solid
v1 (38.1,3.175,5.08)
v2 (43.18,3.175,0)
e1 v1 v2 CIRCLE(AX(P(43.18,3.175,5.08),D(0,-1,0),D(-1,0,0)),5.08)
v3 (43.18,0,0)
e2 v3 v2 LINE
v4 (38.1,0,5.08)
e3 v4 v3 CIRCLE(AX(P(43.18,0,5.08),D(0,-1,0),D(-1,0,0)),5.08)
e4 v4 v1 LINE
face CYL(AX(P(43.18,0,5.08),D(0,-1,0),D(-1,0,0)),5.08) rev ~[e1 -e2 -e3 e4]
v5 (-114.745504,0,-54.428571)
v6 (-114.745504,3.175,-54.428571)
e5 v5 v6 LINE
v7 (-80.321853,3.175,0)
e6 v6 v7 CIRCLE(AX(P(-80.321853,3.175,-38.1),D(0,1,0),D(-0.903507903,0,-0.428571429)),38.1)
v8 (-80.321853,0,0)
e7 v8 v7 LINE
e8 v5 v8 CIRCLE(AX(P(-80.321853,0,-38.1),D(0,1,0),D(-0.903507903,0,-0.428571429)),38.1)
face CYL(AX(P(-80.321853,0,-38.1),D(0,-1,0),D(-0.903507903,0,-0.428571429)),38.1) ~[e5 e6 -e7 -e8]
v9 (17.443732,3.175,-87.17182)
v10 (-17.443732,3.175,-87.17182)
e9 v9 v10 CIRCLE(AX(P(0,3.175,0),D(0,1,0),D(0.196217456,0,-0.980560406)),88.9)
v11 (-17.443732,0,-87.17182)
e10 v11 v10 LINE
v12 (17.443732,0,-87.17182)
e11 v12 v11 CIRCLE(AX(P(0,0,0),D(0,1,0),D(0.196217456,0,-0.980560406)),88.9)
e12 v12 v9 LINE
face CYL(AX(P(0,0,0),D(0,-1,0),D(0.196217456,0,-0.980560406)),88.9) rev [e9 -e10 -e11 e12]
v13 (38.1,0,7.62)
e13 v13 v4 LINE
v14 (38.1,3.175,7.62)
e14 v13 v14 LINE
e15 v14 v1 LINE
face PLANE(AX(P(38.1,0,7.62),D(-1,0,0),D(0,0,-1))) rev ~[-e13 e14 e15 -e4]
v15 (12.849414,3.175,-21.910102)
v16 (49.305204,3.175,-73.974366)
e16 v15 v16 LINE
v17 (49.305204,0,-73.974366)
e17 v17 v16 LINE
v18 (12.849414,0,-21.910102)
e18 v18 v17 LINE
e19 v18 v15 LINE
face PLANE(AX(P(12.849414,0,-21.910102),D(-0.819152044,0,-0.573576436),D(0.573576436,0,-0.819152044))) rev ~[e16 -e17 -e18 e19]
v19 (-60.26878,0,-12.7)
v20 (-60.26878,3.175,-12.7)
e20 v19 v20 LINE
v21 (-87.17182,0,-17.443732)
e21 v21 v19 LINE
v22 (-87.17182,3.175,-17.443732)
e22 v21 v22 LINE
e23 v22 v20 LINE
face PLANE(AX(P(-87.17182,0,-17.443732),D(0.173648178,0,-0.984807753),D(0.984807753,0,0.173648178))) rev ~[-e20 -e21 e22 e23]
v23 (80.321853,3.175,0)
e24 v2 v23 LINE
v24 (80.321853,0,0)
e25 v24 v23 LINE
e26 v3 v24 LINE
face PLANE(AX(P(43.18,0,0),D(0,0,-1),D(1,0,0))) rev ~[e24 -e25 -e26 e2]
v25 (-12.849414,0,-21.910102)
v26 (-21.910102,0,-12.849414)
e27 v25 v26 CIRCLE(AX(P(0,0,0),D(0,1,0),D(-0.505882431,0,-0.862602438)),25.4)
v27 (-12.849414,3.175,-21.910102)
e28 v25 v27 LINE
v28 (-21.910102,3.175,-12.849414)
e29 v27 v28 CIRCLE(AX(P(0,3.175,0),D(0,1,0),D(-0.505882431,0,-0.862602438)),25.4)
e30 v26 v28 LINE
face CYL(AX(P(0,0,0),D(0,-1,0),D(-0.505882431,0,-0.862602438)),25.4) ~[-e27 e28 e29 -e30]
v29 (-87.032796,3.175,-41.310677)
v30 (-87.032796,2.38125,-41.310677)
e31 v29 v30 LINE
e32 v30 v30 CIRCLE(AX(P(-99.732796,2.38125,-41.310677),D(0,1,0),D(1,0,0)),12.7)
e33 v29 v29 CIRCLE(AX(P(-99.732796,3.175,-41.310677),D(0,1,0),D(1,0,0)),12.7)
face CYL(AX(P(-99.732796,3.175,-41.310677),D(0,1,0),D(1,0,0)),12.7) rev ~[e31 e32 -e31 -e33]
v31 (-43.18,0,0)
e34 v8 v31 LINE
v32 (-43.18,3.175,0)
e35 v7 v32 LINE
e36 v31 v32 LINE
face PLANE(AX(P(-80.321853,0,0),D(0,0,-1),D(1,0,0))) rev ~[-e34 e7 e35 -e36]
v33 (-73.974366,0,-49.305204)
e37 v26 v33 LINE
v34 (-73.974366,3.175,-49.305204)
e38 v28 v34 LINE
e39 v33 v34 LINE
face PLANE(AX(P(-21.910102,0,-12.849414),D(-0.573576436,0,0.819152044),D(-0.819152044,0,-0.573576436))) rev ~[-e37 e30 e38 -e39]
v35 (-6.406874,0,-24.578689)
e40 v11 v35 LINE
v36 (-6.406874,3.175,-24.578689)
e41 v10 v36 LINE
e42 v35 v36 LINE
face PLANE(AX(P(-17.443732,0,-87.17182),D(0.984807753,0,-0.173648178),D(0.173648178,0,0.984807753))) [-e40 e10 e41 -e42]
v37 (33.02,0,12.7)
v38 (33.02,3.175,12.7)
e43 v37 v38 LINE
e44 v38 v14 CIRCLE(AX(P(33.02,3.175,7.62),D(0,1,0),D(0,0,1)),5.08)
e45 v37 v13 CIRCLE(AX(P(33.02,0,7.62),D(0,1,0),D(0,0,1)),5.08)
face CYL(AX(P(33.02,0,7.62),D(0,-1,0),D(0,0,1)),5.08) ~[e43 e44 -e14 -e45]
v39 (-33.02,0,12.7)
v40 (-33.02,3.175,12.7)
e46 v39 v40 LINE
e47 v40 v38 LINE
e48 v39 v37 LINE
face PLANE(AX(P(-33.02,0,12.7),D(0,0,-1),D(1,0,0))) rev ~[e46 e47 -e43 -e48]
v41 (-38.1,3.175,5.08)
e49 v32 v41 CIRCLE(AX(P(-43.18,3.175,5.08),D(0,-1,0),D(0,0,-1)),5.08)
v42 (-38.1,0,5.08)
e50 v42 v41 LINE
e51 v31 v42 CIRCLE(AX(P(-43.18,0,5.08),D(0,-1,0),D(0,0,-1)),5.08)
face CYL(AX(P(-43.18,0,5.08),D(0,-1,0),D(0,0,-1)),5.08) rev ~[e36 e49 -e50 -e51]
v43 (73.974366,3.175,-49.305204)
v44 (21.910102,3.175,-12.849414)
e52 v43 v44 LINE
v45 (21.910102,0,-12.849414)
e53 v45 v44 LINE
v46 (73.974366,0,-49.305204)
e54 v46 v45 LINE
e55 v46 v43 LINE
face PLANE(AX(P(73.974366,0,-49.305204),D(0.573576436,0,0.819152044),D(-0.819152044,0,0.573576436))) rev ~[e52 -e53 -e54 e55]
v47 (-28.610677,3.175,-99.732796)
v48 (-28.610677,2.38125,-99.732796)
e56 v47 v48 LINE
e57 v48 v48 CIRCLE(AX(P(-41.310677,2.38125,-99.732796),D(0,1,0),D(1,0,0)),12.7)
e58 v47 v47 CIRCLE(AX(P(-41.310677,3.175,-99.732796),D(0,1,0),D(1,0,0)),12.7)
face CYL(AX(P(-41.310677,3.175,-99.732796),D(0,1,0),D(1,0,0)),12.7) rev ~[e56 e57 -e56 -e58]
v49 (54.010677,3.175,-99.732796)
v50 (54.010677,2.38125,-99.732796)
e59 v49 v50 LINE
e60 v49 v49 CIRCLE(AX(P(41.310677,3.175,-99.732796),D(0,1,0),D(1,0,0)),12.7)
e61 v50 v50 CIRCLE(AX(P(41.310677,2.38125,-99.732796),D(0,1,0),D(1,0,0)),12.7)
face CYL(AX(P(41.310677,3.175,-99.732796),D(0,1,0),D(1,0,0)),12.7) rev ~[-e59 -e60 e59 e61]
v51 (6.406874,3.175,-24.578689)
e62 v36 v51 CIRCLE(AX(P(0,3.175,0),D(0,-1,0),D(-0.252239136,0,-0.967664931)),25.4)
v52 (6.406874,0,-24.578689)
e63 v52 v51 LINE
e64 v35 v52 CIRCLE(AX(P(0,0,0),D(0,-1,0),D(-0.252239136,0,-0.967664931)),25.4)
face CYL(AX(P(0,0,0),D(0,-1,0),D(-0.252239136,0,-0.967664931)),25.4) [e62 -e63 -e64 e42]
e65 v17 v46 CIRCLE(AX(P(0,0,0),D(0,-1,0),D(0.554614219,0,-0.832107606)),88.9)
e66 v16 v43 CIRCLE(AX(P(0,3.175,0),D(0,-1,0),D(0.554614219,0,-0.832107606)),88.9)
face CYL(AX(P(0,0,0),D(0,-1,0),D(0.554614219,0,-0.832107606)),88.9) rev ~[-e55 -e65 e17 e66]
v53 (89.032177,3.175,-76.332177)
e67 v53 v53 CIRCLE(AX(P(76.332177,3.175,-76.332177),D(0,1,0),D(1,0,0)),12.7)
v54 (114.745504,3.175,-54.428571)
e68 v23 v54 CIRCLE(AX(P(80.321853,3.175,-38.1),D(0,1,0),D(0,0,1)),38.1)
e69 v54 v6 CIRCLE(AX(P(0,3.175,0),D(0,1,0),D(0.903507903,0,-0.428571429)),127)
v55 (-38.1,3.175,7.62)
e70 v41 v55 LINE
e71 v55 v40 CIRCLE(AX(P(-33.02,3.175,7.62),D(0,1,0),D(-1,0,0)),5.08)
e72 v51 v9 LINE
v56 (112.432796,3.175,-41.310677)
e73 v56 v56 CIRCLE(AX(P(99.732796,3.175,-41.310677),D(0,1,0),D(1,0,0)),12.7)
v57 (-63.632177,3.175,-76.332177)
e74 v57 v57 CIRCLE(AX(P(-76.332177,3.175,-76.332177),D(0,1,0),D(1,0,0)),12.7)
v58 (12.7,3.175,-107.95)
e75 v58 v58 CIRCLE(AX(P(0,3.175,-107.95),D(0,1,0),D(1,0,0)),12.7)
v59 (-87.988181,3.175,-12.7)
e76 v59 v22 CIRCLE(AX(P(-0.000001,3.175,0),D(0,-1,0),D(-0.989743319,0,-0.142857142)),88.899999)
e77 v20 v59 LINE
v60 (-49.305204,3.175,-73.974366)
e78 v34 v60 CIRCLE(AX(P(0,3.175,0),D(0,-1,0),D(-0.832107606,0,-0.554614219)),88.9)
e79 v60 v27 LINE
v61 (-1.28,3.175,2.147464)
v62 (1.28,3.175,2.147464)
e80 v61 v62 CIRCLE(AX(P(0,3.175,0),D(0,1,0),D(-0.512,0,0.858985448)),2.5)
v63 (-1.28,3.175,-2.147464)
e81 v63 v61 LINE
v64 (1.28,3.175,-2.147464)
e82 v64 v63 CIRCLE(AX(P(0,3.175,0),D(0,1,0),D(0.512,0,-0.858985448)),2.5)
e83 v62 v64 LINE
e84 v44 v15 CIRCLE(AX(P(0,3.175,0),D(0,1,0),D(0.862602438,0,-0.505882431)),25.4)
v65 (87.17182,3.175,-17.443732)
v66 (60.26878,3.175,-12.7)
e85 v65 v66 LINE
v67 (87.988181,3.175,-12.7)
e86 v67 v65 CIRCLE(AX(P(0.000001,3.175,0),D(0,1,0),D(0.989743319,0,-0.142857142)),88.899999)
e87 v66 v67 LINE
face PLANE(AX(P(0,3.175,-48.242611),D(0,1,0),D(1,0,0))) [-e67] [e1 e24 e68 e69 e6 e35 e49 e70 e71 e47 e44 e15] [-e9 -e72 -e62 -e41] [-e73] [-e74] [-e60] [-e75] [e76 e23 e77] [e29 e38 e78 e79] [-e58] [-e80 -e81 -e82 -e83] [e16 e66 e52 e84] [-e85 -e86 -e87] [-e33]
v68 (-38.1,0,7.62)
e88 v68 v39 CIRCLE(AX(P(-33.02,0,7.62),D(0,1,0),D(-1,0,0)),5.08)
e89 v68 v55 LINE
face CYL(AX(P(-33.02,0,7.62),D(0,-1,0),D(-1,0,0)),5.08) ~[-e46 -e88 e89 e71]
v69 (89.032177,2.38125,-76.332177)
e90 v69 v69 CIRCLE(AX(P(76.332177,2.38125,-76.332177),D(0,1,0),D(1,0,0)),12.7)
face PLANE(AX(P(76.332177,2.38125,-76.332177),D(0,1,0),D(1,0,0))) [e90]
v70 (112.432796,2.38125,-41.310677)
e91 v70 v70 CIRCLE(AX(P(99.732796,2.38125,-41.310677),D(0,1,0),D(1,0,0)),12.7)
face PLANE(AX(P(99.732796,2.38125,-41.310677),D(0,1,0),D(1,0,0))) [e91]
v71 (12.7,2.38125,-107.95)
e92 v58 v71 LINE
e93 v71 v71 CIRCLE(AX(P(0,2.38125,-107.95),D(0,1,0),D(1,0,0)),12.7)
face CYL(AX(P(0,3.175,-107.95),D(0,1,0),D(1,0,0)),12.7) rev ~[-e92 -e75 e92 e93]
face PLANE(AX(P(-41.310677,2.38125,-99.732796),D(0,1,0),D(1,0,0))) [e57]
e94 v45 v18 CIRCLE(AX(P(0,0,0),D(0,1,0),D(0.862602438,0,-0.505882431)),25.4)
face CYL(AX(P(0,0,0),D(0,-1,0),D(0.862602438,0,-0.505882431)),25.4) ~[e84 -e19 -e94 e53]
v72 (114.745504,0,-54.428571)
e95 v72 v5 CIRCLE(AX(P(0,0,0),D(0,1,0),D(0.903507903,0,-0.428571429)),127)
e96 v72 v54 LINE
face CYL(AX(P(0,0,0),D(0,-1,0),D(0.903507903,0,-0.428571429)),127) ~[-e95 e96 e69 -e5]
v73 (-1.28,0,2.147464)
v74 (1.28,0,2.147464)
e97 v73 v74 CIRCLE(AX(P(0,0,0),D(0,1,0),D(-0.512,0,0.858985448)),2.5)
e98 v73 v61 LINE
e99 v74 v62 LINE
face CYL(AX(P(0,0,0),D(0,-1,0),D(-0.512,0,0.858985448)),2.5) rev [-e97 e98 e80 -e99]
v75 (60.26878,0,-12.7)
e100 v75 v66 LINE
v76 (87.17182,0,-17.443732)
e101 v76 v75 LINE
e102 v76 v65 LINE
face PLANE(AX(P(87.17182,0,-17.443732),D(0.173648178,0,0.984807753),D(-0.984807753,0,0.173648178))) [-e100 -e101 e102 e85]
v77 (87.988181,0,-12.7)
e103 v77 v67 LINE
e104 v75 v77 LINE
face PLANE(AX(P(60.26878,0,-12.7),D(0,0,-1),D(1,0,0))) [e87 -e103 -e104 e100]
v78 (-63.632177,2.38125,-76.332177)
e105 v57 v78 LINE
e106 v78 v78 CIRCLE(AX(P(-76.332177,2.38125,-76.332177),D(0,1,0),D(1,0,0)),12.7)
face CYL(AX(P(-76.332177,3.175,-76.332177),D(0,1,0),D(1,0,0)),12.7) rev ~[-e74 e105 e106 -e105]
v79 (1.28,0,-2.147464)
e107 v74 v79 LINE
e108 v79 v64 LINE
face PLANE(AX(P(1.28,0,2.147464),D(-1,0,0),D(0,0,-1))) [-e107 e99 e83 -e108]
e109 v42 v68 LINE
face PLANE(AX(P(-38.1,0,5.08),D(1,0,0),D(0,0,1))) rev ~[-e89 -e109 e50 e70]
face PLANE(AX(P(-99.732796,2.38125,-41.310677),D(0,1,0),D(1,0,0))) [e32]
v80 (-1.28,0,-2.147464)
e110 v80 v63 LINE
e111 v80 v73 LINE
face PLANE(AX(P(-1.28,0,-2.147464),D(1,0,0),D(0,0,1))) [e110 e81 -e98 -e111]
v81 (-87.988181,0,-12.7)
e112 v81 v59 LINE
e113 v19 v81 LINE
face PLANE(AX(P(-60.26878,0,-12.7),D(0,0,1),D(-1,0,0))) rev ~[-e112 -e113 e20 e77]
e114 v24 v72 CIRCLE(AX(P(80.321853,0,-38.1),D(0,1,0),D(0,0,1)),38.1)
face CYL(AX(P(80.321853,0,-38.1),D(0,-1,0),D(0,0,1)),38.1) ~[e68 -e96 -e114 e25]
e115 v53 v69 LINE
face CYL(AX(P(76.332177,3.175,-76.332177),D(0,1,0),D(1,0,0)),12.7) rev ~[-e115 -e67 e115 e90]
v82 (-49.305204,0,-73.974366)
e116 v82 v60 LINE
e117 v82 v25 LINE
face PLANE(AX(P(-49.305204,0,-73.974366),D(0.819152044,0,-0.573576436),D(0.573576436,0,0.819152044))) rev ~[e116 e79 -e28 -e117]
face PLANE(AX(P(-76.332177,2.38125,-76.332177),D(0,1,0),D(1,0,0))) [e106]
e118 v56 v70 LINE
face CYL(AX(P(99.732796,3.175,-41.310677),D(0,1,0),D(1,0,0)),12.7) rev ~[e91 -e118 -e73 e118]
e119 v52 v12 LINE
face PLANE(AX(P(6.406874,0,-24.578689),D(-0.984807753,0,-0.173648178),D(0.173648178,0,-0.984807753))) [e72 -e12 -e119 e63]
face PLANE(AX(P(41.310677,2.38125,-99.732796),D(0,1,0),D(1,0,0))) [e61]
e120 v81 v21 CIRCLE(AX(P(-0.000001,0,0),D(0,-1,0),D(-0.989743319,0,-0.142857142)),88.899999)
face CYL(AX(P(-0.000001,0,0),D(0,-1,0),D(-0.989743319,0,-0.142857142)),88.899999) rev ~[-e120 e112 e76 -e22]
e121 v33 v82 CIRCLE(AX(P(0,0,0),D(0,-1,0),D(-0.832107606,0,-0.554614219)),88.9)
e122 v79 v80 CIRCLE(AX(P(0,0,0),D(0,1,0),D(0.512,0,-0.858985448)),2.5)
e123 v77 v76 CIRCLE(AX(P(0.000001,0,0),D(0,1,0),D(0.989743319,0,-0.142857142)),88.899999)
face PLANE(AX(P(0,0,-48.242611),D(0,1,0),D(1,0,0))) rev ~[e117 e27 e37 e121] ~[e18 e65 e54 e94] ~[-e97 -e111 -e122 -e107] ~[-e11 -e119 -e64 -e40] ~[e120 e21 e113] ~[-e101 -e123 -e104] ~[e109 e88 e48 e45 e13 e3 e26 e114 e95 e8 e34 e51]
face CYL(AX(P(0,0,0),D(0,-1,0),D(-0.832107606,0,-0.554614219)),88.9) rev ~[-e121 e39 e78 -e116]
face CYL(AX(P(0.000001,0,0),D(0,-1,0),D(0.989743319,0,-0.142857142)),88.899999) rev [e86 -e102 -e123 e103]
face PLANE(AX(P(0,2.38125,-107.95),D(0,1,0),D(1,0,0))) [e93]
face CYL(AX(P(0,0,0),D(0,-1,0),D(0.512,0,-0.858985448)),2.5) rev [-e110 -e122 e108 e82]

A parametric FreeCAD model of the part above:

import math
import FreeCAD as App
import Part
import Sketcher
from FreeCAD import Vector
Q = App.Units.Quantity

doc = App.newDocument("Part")
body = doc.addObject("PartDesign::Body", "Body")

# Sketch on XZ plane
sketch1 = body.newObject("Sketcher::SketchObject", "Sketch")
sketch1.AttachmentSupport = (doc.getObject("XZ_Plane"), [""])
sketch1.MapMode = "FlatFace"
sketch1.addGeometry([
    Part.LineSegment(Vector(-80.321853, 0, 0), Vector(-43.18, 0, 0)),  # 0
    Part.ArcOfCircle(Part.Circle(Vector(-43.18, 5.08, 0), Vector(0, 0, 1), 5.08), math.radians(-90), math.radians(0)),  # 1
    Part.LineSegment(Vector(-38.1, 5.08, 0), Vector(-38.1, 7.62, 0)),  # 2
    Part.ArcOfCircle(Part.Circle(Vector(-33.02, 7.62, 0), Vector(0, 0, 1), 5.08), math.radians(90), math.radians(180)),  # 3
    Part.LineSegment(Vector(-33.02, 12.7, 0), Vector(33.02, 12.7, 0)),  # 4
    Part.ArcOfCircle(Part.Circle(Vector(33.02, 7.62, 0), Vector(0, 0, 1), 5.08), math.radians(0), math.radians(90)),  # 5
    Part.LineSegment(Vector(38.1, 7.62, 0), Vector(38.1, 5.08, 0)),  # 6
    Part.ArcOfCircle(Part.Circle(Vector(43.18, 5.08, 0), Vector(0, 0, 1), 5.08), math.radians(-180), math.radians(-90)),  # 7
    Part.LineSegment(Vector(43.18, 0, 0), Vector(80.321853, 0, 0)),  # 8
    Part.ArcOfCircle(Part.Circle(Vector(80.321853, -38.1, 0), Vector(0, 0, 1), 38.1), math.radians(-25.376934), math.radians(90)),  # 9
    Part.ArcOfCircle(Part.Circle(Vector(0, 0, 0), Vector(0, 0, 1), 127), math.radians(-154.623066), math.radians(-25.376934)),  # 10
    Part.ArcOfCircle(Part.Circle(Vector(-80.321853, -38.1, 0), Vector(0, 0, 1), 38.1), math.radians(90), math.radians(205.376934)),  # 11
    Part.ArcOfCircle(Part.Circle(Vector(-0.000001, 0, 0), Vector(0, 0, 1), 88.899999), math.radians(-171.786789), math.radians(-168.684147)),  # 12
    Part.LineSegment(Vector(-87.17182, -17.443732, 0), Vector(-60.26878, -12.7, 0)),  # 13
    Part.LineSegment(Vector(-60.26878, -12.7, 0), Vector(-87.988181, -12.7, 0)),  # 14
    Part.LineSegment(Vector(-1.28, 2.147464, 0), Vector(-1.28, -2.147464, 0)),  # 15
    Part.ArcOfCircle(Part.Circle(Vector(0, 0, 0), Vector(0, 0, 1), 2.5), math.radians(-120.797141), math.radians(-59.202859)),  # 16
    Part.LineSegment(Vector(1.28, -2.147464, 0), Vector(1.28, 2.147464, 0)),  # 17
    Part.ArcOfCircle(Part.Circle(Vector(0, 0, 0), Vector(0, 0, 1), 2.5), math.radians(59.202859), math.radians(120.797141)),  # 18
    Part.LineSegment(Vector(60.26878, -12.7, 0), Vector(87.17182, -17.443732, 0)),  # 19
    Part.ArcOfCircle(Part.Circle(Vector(0.000001, 0, 0), Vector(0, 0, 1), 88.899999), math.radians(-11.315853), math.radians(-8.213211)),  # 20
    Part.LineSegment(Vector(87.988181, -12.7, 0), Vector(60.26878, -12.7, 0)),  # 21
    Part.ArcOfCircle(Part.Circle(Vector(0, 0, 0), Vector(0, 0, 1), 88.9), math.radians(-146.315853), math.radians(-123.684147)),  # 22
    Part.LineSegment(Vector(-49.305204, -73.974366, 0), Vector(-12.849414, -21.910102, 0)),  # 23
    Part.ArcOfCircle(Part.Circle(Vector(0, 0, 0), Vector(0, 0, 1), 25.4), math.radians(-149.610052), math.radians(-120.389948)),  # 24
    Part.LineSegment(Vector(-21.910102, -12.849414, 0), Vector(-73.974366, -49.305204, 0)),  # 25
    Part.ArcOfCircle(Part.Circle(Vector(0, 0, 0), Vector(0, 0, 1), 88.9), math.radians(-56.315853), math.radians(-33.684147)),  # 26
    Part.LineSegment(Vector(73.974366, -49.305204, 0), Vector(21.910102, -12.849414, 0)),  # 27
    Part.ArcOfCircle(Part.Circle(Vector(0, 0, 0), Vector(0, 0, 1), 25.4), math.radians(-59.610052), math.radians(-30.389948)),  # 28
    Part.LineSegment(Vector(12.849414, -21.910102, 0), Vector(49.305204, -73.974366, 0)),  # 29
    Part.LineSegment(Vector(-6.406874, -24.578689, 0), Vector(-17.443732, -87.17182, 0)),  # 30
    Part.ArcOfCircle(Part.Circle(Vector(0, 0, 0), Vector(0, 0, 1), 88.9), math.radians(-101.315853), math.radians(-78.684147)),  # 31
    Part.LineSegment(Vector(17.443732, -87.17182, 0), Vector(6.406874, -24.578689, 0)),  # 32
    Part.ArcOfCircle(Part.Circle(Vector(0, 0, 0), Vector(0, 0, 1), 25.4), math.radians(-104.610052), math.radians(-75.389948)),  # 33
], False)
sketch1.addConstraint([
    Sketcher.Constraint("Tangent", 0, 2, 1, 1),
    Sketcher.Constraint("Tangent", 1, 2, 2, 1),
    Sketcher.Constraint("Tangent", 2, 2, 3, 2),
    Sketcher.Constraint("Tangent", 3, 1, 4, 1),
    Sketcher.Constraint("Tangent", 4, 2, 5, 2),
    Sketcher.Constraint("Tangent", 5, 1, 6, 1),
    Sketcher.Constraint("Tangent", 6, 2, 7, 1),
    Sketcher.Constraint("Tangent", 7, 2, 8, 1),
    Sketcher.Constraint("Tangent", 8, 2, 9, 2),
    Sketcher.Constraint("Tangent", 9, 1, 10, 2),
    Sketcher.Constraint("Tangent", 10, 1, 11, 2),
    Sketcher.Constraint("Tangent", 11, 1, 0, 1),
    Sketcher.Constraint("Coincident", 12, 2, 13, 1),
    Sketcher.Constraint("Coincident", 13, 2, 14, 1),
    Sketcher.Constraint("Coincident", 14, 2, 12, 1),
    Sketcher.Constraint("Coincident", 15, 2, 16, 1),
    Sketcher.Constraint("Coincident", 16, 2, 17, 1),
    Sketcher.Constraint("Coincident", 17, 2, 18, 1),
    Sketcher.Constraint("Coincident", 18, 2, 15, 1),
    Sketcher.Constraint("Coincident", 19, 2, 20, 1),
    Sketcher.Constraint("Coincident", 20, 2, 21, 1),
    Sketcher.Constraint("Coincident", 21, 2, 19, 1),
    Sketcher.Constraint("Coincident", 22, 2, 23, 1),
    Sketcher.Constraint("Coincident", 23, 2, 24, 2),
    Sketcher.Constraint("Coincident", 24, 1, 25, 1),
    Sketcher.Constraint("Coincident", 25, 2, 22, 1),
    Sketcher.Constraint("Coincident", 26, 2, 27, 1),
    Sketcher.Constraint("Coincident", 27, 2, 28, 2),
    Sketcher.Constraint("Coincident", 28, 1, 29, 1),
    Sketcher.Constraint("Coincident", 29, 2, 26, 1),
    Sketcher.Constraint("Coincident", 30, 2, 31, 1),
    Sketcher.Constraint("Coincident", 31, 2, 32, 1),
    Sketcher.Constraint("Coincident", 32, 2, 33, 2),
    Sketcher.Constraint("Coincident", 33, 1, 30, 1),
    Sketcher.Constraint("Horizontal", 0),
    Sketcher.Constraint("Vertical", 2),
    Sketcher.Constraint("Horizontal", 4),
    Sketcher.Constraint("Vertical", 6),
    Sketcher.Constraint("Horizontal", 8),
    Sketcher.Constraint("Horizontal", 14),
    Sketcher.Constraint("Vertical", 15),
    Sketcher.Constraint("Vertical", 17),
    Sketcher.Constraint("Horizontal", 21),
    Sketcher.Constraint("Coincident", 10, 3, -1, 1),
    Sketcher.Constraint("Coincident", 12, 3, -1, 1),
    Sketcher.Constraint("Coincident", 16, 3, -1, 1),
    Sketcher.Constraint("Coincident", 18, 3, -1, 1),
    Sketcher.Constraint("Coincident", 20, 3, -1, 1),
    Sketcher.Constraint("Coincident", 22, 3, -1, 1),
    Sketcher.Constraint("Coincident", 24, 3, -1, 1),
    Sketcher.Constraint("Coincident", 26, 3, -1, 1),
    Sketcher.Constraint("Coincident", 28, 3, -1, 1),
    Sketcher.Constraint("Coincident", 31, 3, -1, 1),
    Sketcher.Constraint("Coincident", 33, 3, -1, 1),
    Sketcher.Constraint("Equal", 1, 3),
    Sketcher.Constraint("Equal", 3, 5),
    Sketcher.Constraint("Equal", 5, 7),
    Sketcher.Constraint("Equal", 9, 11),
    Sketcher.Constraint("Equal", 16, 18),
    Sketcher.Constraint("Equal", 12, 20),
    Sketcher.Constraint("Equal", 20, 22),
    Sketcher.Constraint("Equal", 22, 26),
    Sketcher.Constraint("Equal", 24, 28),
    Sketcher.Constraint("Equal", 26, 31),
    Sketcher.Constraint("Equal", 28, 33),
    Sketcher.Constraint("Symmetric", 0, 2, 7, 2, -1, 1),
    Sketcher.Constraint("Symmetric", 13, 2, 21, 2, -2),
    Sketcher.Constraint("PointOnObject", 0, 2, -1),
    Sketcher.Constraint("Perpendicular", 23, 27),
    Sketcher.Constraint("Perpendicular", 25, 29),
    Sketcher.Constraint("Perpendicular", 19, 30),
    Sketcher.Constraint("Perpendicular", 13, 32),
    Sketcher.Constraint("Horizontal", 15, 2, 16, 2),
    Sketcher.Constraint("Horizontal", 12, 2, 19, 2),
    Sketcher.Constraint("Horizontal", 25, 2, 26, 2),
    Sketcher.Constraint("Horizontal", 24, 1, 27, 2),
    Sketcher.Constraint("Horizontal", 23, 2, 28, 1),
    Sketcher.Constraint("Horizontal", 30, 2, 31, 2),
    Sketcher.Constraint("Equal", 23, 25),
    Sketcher.Constraint("Equal", 29, 30),
    Sketcher.Constraint("Radius", 10, Q("5 in")),
    Sketcher.Constraint("Radius", 24, Q("1 in")),
    Sketcher.Constraint("Radius", 1, Q("0.2 in")),
    Sketcher.Constraint("Radius", 9, Q("1.5 in")),
    Sketcher.Constraint("Radius", 12, Q("3.5 in")),
    Sketcher.Constraint("DistanceX", 4, 1, 4, 2, Q("2.6 in")),
    Sketcher.Constraint("DistanceY", 2, 1, 2, 2, Q("0.1 in")),
    Sketcher.Constraint("Angle", 13, Q("10 deg")),
    Sketcher.Constraint("Angle", 23, Q("55 deg")),
    Sketcher.Constraint("DistanceY", 11, 3, 14, 2, Q("1 in")),
    Sketcher.Constraint("Radius", 16, 2.5),
    Sketcher.Constraint("DistanceX", 14, 2, 14, 1, 27.719401),
    Sketcher.Constraint("DistanceX", 15, 2, -1, 1, 1.28),
    Sketcher.Constraint("DistanceY", 23, 2, -1, 1, 21.910102),
])
pad1 = body.newObject("PartDesign::Pad", "Pad")
pad1.Profile = sketch1
pad1.Length = Q("0.125 in")
pad1.Reversed = True

# Sketch on XZ plane
sketch2 = body.newObject("Sketcher::SketchObject", "Sketch001")
sketch2.AttachmentSupport = (doc.getObject("XZ_Plane"), [""])
sketch2.MapMode = "FlatFace"
sketch2.AttachmentOffset = App.Placement(Vector(0, 0, -0.125 * 25.4), App.Rotation())
sketch2.addGeometry([
    Part.Circle(Vector(-41.310677, -99.732796, 0), Vector(0, 0, 1), 12.7),  # 0
    Part.Circle(Vector(-99.732796, -41.310677, 0), Vector(0, 0, 1), 12.7),  # 1
    Part.Circle(Vector(-76.332177, -76.332177, 0), Vector(0, 0, 1), 12.7),  # 2
    Part.Circle(Vector(0, -107.95, 0), Vector(0, 0, 1), 12.7),  # 3
    Part.Circle(Vector(41.310677, -99.732796, 0), Vector(0, 0, 1), 12.7),  # 4
    Part.Circle(Vector(76.332177, -76.332177, 0), Vector(0, 0, 1), 12.7),  # 5
    Part.Circle(Vector(99.732796, -41.310677, 0), Vector(0, 0, 1), 12.7),  # 6
], False)
sketch2.addConstraint([
    Sketcher.Constraint("Equal", 0, 1),
    Sketcher.Constraint("Equal", 1, 2),
    Sketcher.Constraint("Equal", 2, 3),
    Sketcher.Constraint("Equal", 3, 4),
    Sketcher.Constraint("Equal", 4, 5),
    Sketcher.Constraint("Equal", 5, 6),
    Sketcher.Constraint("Symmetric", 0, 3, 4, 3, -2),
    Sketcher.Constraint("Symmetric", 2, 3, 5, 3, -2),
    Sketcher.Constraint("Symmetric", 1, 3, 6, 3, -2),
    Sketcher.Constraint("PointOnObject", 3, 3, -2),
    Sketcher.Constraint("Diameter", 0, Q("1 in")),
    Sketcher.Constraint("DistanceY", 3, 3, -1, 1, Q("4.25 in")),
    Sketcher.Constraint("DistanceX", 2, 3, 0, 3, 35.021501),
    Sketcher.Constraint("DistanceY", 2, 3, 1, 3, 35.021501),
    Sketcher.Constraint("DistanceX", 1, 3, 0, 3, 58.422119),
    Sketcher.Constraint("DistanceY", 0, 3, 1, 3, 58.422119),
    Sketcher.Constraint("DistanceX", 0, 3, -1, 1, 41.310677),
    Sketcher.Constraint("DistanceY", 0, 3, -1, 1, 99.732796),
])
pocket1 = body.newObject("PartDesign::Pocket", "Pocket")
pocket1.Profile = sketch2
pocket1.Length = Q("0.03125 in")
pocket1.Reversed = True

doc.recompute()
